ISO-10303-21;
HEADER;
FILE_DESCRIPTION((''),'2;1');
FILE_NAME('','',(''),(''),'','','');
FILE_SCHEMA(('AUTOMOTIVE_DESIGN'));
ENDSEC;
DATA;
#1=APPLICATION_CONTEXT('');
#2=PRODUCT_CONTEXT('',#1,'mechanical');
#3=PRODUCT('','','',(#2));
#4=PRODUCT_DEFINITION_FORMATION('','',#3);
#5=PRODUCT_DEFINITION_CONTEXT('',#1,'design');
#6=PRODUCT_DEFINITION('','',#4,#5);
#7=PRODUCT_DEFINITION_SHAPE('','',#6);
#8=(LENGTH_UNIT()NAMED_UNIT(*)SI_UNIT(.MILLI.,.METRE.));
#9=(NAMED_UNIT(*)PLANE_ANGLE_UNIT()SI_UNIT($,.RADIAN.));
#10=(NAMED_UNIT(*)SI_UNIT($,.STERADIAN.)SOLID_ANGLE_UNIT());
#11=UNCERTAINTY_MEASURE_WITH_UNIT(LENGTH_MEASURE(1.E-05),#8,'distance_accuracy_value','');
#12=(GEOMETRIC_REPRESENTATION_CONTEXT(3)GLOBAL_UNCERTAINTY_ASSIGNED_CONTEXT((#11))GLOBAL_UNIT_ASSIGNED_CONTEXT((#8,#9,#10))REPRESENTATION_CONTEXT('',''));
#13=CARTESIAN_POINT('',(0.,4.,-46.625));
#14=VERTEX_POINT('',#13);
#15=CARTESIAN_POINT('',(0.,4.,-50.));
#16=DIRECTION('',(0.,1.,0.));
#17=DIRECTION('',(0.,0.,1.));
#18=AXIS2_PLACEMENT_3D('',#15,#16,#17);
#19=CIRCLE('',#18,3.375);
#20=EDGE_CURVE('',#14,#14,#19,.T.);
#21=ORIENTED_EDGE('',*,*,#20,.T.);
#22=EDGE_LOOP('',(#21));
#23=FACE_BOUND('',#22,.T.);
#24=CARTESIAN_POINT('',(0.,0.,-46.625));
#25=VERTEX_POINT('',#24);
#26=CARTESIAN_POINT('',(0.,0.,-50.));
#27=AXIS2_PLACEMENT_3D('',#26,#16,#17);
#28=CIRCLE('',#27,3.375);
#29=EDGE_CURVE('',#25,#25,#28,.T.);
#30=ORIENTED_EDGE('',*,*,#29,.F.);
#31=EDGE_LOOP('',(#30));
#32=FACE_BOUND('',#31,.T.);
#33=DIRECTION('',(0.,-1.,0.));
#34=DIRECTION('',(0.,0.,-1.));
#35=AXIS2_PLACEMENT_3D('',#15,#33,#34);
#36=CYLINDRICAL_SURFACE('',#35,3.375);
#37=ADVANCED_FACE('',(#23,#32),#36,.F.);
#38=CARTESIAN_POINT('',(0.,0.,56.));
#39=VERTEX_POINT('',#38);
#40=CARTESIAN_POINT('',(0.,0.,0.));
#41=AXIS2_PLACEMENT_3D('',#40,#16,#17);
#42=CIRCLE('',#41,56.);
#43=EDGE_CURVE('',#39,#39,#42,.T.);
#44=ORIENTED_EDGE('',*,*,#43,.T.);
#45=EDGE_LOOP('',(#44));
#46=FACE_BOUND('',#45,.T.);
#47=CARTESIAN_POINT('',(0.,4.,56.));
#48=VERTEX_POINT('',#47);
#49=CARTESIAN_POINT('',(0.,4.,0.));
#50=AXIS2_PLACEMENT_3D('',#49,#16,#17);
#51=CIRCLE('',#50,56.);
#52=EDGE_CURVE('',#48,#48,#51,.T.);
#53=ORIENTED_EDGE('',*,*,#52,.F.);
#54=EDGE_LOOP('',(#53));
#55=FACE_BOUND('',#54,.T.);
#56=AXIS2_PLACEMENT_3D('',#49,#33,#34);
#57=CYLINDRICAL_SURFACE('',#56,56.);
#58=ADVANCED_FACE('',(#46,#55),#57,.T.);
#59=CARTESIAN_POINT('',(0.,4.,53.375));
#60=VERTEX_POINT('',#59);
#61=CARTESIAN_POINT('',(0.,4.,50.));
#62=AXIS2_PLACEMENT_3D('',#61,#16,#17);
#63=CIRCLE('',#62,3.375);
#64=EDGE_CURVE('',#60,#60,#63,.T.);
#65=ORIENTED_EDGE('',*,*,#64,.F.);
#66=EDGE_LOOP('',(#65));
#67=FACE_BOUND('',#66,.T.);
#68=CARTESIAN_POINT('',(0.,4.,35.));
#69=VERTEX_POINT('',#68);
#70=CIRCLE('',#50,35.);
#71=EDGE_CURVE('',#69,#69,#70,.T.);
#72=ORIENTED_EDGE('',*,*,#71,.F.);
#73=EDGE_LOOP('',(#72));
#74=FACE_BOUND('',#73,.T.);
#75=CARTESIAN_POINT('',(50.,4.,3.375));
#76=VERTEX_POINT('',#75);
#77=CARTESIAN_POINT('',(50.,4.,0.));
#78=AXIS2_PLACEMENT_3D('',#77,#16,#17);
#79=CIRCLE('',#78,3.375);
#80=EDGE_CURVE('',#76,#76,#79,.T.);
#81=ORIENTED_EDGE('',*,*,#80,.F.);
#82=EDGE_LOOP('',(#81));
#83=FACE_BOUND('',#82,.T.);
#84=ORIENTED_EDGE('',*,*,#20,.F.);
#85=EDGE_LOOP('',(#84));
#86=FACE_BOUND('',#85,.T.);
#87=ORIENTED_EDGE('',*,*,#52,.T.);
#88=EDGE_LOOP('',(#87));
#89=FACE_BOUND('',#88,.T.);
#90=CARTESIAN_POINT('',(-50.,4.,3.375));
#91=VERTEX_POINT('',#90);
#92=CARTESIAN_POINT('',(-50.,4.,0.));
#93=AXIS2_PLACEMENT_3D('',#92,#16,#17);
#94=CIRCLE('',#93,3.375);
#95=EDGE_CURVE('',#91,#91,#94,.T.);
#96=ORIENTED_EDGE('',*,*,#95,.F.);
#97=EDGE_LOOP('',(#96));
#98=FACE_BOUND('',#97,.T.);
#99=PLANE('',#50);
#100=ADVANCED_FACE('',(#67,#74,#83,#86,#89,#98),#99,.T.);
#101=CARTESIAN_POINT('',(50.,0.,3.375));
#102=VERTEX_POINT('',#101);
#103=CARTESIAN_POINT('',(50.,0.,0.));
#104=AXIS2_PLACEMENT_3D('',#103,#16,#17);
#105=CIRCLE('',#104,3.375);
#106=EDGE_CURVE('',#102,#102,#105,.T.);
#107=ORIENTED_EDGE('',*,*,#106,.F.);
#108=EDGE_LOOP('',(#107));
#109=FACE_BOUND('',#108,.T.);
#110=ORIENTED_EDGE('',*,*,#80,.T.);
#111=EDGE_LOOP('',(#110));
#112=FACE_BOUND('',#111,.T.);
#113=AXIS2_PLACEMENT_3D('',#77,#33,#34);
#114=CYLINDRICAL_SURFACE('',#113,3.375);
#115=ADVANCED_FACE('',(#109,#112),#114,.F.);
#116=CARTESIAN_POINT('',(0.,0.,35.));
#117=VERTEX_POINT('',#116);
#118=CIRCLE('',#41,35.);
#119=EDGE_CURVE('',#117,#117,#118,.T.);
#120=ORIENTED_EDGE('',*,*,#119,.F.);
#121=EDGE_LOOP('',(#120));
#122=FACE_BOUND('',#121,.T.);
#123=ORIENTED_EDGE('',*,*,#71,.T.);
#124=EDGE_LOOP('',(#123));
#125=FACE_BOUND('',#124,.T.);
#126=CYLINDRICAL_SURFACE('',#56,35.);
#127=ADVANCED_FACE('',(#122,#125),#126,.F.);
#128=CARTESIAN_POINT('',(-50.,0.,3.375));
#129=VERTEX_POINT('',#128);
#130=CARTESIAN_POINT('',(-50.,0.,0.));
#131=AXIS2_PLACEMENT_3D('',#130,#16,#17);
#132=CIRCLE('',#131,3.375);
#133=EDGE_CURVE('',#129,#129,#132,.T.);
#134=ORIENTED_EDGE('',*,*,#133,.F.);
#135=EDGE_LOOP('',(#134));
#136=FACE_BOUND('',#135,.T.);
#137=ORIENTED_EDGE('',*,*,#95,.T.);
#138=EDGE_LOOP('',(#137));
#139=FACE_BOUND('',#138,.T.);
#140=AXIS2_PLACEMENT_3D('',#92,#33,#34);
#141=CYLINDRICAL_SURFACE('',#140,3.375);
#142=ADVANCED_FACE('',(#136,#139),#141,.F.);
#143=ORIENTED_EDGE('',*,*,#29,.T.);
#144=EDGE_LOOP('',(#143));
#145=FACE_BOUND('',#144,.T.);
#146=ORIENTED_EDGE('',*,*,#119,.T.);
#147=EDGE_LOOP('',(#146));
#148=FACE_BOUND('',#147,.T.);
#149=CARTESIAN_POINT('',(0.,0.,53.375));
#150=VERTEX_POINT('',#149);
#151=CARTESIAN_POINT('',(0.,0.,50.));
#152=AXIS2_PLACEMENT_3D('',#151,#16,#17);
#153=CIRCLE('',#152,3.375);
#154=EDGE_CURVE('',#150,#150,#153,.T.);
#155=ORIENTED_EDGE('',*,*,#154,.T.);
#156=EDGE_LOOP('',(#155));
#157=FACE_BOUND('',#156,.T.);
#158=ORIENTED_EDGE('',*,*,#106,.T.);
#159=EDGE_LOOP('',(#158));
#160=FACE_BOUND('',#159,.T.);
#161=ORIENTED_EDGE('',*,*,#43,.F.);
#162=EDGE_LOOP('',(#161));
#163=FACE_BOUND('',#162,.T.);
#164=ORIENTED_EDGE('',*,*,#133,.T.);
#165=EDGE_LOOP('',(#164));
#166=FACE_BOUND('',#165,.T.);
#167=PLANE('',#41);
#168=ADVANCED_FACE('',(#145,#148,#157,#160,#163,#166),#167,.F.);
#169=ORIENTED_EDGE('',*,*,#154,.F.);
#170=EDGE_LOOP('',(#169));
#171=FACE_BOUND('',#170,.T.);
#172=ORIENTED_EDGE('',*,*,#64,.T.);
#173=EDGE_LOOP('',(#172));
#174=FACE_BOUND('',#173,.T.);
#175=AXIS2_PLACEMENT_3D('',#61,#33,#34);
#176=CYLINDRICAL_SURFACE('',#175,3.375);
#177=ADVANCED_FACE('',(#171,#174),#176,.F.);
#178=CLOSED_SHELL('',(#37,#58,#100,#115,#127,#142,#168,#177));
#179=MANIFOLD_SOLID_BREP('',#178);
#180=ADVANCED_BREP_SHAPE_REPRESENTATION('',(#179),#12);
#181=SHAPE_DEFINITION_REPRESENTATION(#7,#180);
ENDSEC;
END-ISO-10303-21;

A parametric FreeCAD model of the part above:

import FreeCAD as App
import Part
import Sketcher

doc = App.newDocument("Part")
params = doc.addObject("Spreadsheet::Sheet", "Params")
for row, (alias, value) in enumerate([
    ("sketch1_diameter", "112 mm"),
    ("sketch1_diameter2", "70 mm"),
    ("sketch1_diameter3", "6.75 mm"),
    ("pad1_length", "4 mm"),
], start=1):
    params.set(f"A{row}", alias)
    params.set(f"B{row}", "=" + value)
    params.setAlias(f"B{row}", alias)

body = doc.addObject("PartDesign::Body", "Body")

sketch1 = doc.addObject("Sketcher::SketchObject", "Sketch")
body.addObject(sketch1)
sketch1.AttachmentSupport = (doc.XZ_Plane, [""])
sketch1.MapMode = "FlatFace"
sketch1.addGeometry(Part.Circle(App.Vector(0, 0, 0), App.Vector(0, 0, 1), 56), False)
sketch1.addGeometry(Part.Circle(App.Vector(0, -50, 0), App.Vector(0, 0, 1), 3.4), False)
sketch1.addGeometry(Part.Circle(App.Vector(-50, 0, 0), App.Vector(0, 0, 1), 3.4), False)
sketch1.addGeometry(Part.Circle(App.Vector(50, 0, 0), App.Vector(0, 0, 1), 3.4), False)
sketch1.addGeometry(Part.Circle(App.Vector(0, 0, 0), App.Vector(0, 0, 1), 35), False)
sketch1.addGeometry(Part.Circle(App.Vector(0, 50, 0), App.Vector(0, 0, 1), 3.4), False)
sketch1.addConstraint(Sketcher.Constraint("Coincident", 0, 3, -1, 1))
sketch1.addConstraint(Sketcher.Constraint("Coincident", 4, 3, -1, 1))
sketch1.addConstraint(Sketcher.Constraint("Equal", 1, 2))
sketch1.addConstraint(Sketcher.Constraint("Equal", 2, 3))
sketch1.addConstraint(Sketcher.Constraint("Equal", 3, 5))
sketch1.addConstraint(Sketcher.Constraint("Symmetric", 2, 3, 3, 3, -1, 1))
sketch1.addConstraint(Sketcher.Constraint("Symmetric", 1, 3, 5, 3, -1, 1))
sketch1.addConstraint(Sketcher.Constraint("PointOnObject", 1, 3, -2))
sketch1.addConstraint(Sketcher.Constraint("PointOnObject", 2, 3, -1))
sketch1.addConstraint(Sketcher.Constraint("Diameter", 0, 112.0))
sketch1.addConstraint(Sketcher.Constraint("Diameter", 4, 70.0))
sketch1.addConstraint(Sketcher.Constraint("Diameter", 1, 6.75))
sketch1.addConstraint(Sketcher.Constraint("DistanceY", 1, 3, -1, 1, 50.0))
sketch1.addConstraint(Sketcher.Constraint("DistanceX", 2, 3, -1, 1, 50.0))
sketch1.setExpression("Constraints[9]", "Params.sketch1_diameter")
sketch1.setExpression("Constraints[10]", "Params.sketch1_diameter2")
sketch1.setExpression("Constraints[11]", "Params.sketch1_diameter3")
pad1 = doc.addObject("PartDesign::Pad", "Pad")
body.addObject(pad1)
pad1.Profile = sketch1
pad1.setExpression("Length", "Params.pad1_length")
pad1.Reversed = True

doc.recompute()
